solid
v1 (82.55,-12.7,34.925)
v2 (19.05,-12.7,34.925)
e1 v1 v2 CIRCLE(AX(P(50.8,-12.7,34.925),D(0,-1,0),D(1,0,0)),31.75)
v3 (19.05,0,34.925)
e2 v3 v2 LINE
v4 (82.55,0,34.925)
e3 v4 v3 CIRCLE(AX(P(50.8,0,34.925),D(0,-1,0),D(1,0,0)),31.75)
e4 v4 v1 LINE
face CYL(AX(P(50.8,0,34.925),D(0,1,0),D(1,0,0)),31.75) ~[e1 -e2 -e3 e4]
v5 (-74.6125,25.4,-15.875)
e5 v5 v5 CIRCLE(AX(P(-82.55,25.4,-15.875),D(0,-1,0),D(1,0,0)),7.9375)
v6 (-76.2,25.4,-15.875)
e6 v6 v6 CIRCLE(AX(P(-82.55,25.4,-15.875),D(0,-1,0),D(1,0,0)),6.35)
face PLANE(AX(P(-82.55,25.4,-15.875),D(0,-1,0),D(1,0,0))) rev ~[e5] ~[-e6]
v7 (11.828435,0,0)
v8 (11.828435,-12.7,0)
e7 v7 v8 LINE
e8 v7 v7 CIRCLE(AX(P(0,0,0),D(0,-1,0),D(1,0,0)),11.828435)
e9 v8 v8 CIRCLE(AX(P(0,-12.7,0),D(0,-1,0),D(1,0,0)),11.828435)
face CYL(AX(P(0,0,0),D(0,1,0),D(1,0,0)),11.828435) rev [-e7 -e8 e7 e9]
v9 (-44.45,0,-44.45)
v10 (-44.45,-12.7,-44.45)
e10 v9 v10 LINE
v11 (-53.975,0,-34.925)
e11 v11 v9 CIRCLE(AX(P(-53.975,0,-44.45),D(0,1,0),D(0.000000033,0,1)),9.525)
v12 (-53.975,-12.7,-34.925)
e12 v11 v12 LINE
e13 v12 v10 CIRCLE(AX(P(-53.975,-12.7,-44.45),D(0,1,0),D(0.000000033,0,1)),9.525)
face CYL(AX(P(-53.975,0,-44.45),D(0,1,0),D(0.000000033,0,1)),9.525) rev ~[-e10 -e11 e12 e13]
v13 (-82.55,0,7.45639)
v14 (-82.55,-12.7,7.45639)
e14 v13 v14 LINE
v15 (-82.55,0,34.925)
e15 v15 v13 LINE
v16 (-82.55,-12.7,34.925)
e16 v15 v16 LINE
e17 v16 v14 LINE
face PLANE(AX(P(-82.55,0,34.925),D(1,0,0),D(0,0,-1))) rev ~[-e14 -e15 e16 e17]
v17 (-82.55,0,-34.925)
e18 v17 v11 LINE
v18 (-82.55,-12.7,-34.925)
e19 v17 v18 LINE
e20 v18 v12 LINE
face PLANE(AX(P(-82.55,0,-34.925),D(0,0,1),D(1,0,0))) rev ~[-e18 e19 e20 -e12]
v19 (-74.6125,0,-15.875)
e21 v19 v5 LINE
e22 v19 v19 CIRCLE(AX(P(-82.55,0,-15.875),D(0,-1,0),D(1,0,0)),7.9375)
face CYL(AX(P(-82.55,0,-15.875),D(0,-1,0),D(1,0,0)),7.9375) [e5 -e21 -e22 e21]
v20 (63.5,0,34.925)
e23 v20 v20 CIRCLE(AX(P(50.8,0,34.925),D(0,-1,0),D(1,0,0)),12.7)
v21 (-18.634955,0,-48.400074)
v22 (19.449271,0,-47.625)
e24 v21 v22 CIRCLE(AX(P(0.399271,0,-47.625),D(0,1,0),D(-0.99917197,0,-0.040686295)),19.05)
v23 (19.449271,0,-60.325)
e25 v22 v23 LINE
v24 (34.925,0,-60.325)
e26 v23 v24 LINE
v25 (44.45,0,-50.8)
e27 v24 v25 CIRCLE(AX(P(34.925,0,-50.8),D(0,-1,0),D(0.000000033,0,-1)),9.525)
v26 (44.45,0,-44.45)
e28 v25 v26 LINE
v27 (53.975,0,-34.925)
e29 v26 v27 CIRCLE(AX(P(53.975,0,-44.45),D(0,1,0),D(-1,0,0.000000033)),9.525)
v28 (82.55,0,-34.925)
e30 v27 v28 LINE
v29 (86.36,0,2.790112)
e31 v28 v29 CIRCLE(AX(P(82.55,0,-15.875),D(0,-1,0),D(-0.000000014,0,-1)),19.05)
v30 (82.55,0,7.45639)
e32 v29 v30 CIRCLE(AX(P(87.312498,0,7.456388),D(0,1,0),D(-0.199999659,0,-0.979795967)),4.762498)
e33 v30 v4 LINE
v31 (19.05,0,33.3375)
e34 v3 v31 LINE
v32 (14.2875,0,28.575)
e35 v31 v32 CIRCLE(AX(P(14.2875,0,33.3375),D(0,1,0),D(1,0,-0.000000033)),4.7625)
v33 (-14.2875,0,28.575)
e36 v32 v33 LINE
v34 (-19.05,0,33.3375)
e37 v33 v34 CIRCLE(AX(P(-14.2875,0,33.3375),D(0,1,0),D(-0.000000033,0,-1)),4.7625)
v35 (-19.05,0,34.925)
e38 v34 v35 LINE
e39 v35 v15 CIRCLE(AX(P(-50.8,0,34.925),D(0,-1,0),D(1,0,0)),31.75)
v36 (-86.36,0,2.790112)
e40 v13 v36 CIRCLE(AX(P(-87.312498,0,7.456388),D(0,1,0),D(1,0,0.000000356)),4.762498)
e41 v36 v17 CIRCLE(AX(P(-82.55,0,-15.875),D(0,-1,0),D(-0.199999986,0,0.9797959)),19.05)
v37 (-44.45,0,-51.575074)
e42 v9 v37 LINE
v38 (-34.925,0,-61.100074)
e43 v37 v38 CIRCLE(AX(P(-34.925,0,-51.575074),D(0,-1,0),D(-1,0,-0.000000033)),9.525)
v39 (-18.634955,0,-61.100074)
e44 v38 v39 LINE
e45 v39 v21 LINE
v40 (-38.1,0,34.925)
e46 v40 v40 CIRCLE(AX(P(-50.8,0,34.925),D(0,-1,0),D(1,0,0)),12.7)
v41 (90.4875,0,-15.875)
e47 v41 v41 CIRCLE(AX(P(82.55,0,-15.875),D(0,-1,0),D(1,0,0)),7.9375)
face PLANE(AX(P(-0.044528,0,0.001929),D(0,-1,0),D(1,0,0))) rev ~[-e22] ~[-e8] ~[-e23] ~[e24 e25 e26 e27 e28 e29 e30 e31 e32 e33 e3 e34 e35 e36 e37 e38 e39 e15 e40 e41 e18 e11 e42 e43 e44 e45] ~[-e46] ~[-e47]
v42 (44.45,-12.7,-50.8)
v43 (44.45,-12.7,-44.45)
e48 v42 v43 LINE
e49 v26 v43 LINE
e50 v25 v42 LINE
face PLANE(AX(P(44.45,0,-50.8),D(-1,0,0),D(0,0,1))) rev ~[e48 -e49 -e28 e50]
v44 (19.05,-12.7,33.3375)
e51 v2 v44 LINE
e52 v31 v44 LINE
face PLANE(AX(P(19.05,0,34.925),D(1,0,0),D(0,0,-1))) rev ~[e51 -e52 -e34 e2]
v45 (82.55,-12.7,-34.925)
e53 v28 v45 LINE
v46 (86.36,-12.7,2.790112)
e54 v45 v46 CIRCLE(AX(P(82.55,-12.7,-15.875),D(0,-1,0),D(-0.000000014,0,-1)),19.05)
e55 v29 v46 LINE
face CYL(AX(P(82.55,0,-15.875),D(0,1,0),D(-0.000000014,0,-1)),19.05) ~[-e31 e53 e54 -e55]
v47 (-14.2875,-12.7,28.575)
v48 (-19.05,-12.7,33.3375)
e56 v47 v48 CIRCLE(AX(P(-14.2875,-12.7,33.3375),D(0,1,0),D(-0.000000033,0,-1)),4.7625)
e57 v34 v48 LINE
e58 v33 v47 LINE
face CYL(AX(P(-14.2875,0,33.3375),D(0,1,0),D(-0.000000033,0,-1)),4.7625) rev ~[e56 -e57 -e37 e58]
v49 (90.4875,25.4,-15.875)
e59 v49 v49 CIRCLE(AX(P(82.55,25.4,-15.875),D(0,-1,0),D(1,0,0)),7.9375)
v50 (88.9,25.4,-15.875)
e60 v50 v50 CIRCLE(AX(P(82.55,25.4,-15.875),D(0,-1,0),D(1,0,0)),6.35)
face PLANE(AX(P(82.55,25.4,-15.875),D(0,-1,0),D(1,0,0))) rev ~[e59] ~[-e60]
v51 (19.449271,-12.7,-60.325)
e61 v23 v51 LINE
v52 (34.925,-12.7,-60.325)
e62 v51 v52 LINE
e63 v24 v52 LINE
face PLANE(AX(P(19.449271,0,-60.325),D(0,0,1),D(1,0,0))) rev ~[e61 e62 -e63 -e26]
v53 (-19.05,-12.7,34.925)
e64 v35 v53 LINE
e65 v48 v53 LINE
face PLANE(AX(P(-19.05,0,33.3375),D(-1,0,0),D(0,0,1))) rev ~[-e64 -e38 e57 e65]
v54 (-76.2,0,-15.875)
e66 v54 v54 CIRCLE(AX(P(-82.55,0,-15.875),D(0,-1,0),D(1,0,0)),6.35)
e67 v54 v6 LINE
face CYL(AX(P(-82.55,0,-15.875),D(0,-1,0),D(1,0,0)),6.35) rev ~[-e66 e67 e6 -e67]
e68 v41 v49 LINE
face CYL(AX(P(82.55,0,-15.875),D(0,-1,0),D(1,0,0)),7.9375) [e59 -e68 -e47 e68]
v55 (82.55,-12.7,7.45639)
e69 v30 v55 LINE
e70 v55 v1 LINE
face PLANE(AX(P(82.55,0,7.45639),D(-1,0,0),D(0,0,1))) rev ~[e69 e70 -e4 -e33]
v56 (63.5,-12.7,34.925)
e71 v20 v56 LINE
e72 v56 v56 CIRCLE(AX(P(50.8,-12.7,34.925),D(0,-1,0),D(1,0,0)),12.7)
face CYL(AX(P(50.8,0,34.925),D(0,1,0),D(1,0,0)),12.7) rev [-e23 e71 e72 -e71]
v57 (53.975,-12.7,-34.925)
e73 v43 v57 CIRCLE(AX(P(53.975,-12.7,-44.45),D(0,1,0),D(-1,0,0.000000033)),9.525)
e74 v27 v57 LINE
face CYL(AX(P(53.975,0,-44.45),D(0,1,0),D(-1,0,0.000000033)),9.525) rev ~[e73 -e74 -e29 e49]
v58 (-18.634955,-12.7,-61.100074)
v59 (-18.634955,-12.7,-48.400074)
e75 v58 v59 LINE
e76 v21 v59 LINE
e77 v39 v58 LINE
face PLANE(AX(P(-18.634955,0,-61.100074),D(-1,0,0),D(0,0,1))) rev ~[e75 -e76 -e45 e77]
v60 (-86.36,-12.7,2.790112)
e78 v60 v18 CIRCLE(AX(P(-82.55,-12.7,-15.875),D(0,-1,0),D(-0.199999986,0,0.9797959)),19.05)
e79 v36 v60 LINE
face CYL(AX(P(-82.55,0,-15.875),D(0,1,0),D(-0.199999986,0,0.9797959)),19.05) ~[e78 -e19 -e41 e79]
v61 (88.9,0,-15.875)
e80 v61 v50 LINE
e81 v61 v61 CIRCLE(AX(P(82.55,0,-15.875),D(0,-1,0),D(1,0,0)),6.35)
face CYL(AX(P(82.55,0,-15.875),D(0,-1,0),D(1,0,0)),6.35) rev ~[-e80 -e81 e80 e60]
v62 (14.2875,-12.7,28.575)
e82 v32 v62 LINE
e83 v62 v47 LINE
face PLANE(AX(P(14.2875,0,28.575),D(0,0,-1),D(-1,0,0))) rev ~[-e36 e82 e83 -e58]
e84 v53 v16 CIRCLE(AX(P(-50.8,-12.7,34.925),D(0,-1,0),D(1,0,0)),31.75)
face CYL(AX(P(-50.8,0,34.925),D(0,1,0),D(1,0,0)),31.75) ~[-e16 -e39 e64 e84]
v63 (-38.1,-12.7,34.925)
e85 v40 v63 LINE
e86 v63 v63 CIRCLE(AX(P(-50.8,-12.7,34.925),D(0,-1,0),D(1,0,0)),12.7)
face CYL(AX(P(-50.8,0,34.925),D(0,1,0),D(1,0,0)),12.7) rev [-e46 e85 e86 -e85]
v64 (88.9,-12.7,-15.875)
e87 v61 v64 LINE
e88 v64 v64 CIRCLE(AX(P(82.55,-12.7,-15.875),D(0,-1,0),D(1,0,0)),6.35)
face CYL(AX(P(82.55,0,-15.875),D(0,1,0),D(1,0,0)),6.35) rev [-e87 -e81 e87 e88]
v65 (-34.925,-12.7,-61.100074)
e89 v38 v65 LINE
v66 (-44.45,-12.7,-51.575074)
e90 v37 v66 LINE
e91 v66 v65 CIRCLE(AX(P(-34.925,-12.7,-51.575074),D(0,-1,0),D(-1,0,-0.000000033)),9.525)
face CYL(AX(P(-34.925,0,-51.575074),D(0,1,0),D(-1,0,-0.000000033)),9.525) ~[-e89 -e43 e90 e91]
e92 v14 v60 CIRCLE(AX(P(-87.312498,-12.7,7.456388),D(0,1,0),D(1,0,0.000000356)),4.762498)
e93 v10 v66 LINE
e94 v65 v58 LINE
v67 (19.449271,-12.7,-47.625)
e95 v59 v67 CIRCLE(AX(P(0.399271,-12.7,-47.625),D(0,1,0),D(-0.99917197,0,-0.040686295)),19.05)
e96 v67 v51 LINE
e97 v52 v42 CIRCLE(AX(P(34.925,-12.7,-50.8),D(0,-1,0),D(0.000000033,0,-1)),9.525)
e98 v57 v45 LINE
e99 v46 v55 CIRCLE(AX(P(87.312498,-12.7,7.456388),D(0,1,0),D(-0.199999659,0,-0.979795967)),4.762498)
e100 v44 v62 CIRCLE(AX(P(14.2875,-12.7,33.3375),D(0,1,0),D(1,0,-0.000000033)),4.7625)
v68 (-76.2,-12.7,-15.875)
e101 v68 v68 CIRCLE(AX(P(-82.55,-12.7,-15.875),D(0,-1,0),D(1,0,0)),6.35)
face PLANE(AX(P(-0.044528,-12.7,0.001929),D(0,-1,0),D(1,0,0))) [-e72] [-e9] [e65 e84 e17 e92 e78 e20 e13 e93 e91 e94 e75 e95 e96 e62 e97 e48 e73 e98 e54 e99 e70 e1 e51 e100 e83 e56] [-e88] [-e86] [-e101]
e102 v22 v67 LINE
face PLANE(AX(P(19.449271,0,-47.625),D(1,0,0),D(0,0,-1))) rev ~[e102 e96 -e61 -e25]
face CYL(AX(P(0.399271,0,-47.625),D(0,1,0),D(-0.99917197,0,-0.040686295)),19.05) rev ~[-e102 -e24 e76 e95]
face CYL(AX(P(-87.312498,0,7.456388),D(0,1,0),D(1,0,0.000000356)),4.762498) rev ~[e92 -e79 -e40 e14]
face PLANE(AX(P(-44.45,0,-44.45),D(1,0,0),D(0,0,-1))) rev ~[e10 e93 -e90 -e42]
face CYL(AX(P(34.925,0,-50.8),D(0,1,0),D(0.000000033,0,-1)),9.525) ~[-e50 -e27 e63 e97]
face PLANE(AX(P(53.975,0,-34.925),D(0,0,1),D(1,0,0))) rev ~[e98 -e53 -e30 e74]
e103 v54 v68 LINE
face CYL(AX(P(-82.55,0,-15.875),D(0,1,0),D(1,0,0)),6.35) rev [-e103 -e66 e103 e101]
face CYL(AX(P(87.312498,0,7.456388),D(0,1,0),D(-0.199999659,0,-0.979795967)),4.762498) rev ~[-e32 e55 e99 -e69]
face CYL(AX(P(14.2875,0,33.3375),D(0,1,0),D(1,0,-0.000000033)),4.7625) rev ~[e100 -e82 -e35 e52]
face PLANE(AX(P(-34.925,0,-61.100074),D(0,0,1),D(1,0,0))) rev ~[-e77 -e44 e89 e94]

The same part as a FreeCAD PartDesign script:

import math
import FreeCAD as App
import Part
import Sketcher

V = App.Vector
Q = App.Units.Quantity

doc = App.newDocument("Part")
body = doc.addObject("PartDesign::Body", "Body")

# Sketch on XZ plane
sketch1 = body.newObject("Sketcher::SketchObject", "Sketch")
sketch1.AttachmentSupport = (doc.getObject("XZ_Plane"), [""])
sketch1.MapMode = "FlatFace"
sketch1.addGeometry([
    Part.LineSegment(V(82.55, 7.45639, 0), V(82.55, 34.925, 0)),  # 0
    Part.ArcOfCircle(Part.Circle(V(50.8, 34.925, 0), V(0, 0, 1), 31.75), math.radians(0), math.radians(180)),  # 1
    Part.LineSegment(V(19.05, 34.925, 0), V(19.05, 33.3375, 0)),  # 2
    Part.ArcOfCircle(Part.Circle(V(14.2875, 33.3375, 0), V(0, 0, 1), 4.7625), math.radians(-89.999998), math.radians(-0.000002)),  # 3
    Part.LineSegment(V(14.2875, 28.575, 0), V(-14.2875, 28.575, 0)),  # 4
    Part.ArcOfCircle(Part.Circle(V(-14.2875, 33.3375, 0), V(0, 0, 1), 4.7625), math.radians(-179.999998), math.radians(-90.000002)),  # 5
    Part.LineSegment(V(-19.05, 33.3375, 0), V(-19.05, 34.925, 0)),  # 6
    Part.ArcOfCircle(Part.Circle(V(-50.8, 34.925, 0), V(0, 0, 1), 31.75), math.radians(0), math.radians(180)),  # 7
    Part.LineSegment(V(-82.55, 34.925, 0), V(-82.55, 7.45639, 0)),  # 8
    Part.ArcOfCircle(Part.Circle(V(-87.312498, 7.456388, 0), V(0, 0, 1), 4.762498), math.radians(-78.463061), math.radians(0.00002)),  # 9
    Part.ArcOfCircle(Part.Circle(V(-82.55, -15.875, 0), V(0, 0, 1), 19.05), math.radians(101.536958), math.radians(270.000001)),  # 10
    Part.LineSegment(V(-82.55, -34.925, 0), V(-53.975, -34.925, 0)),  # 11
    Part.ArcOfCircle(Part.Circle(V(-53.975, -44.45, 0), V(0, 0, 1), 9.525), math.radians(0.000002), math.radians(89.999998)),  # 12
    Part.LineSegment(V(-44.45, -44.45, 0), V(-44.45, -51.575074, 0)),  # 13
    Part.ArcOfCircle(Part.Circle(V(-34.925, -51.575074, 0), V(0, 0, 1), 9.525), math.radians(-179.999998), math.radians(-90.000002)),  # 14
    Part.LineSegment(V(-34.925, -61.100074, 0), V(-18.634955, -61.100074, 0)),  # 15
    Part.LineSegment(V(-18.634955, -61.100074, 0), V(-18.634955, -48.400074, 0)),  # 16
    Part.ArcOfCircle(Part.Circle(V(0.399271, -47.625, 0), V(0, 0, 1), 19.05), math.radians(0), math.radians(182.331797)),  # 17
    Part.LineSegment(V(19.449271, -47.625, 0), V(19.449271, -60.325, 0)),  # 18
    Part.LineSegment(V(19.449271, -60.325, 0), V(34.925, -60.325, 0)),  # 19
    Part.ArcOfCircle(Part.Circle(V(34.925, -50.8, 0), V(0, 0, 1), 9.525), math.radians(-89.999998), math.radians(-0.000002)),  # 20
    Part.LineSegment(V(44.45, -50.8, 0), V(44.45, -44.45, 0)),  # 21
    Part.ArcOfCircle(Part.Circle(V(53.975, -44.45, 0), V(0, 0, 1), 9.525), math.radians(90.000002), math.radians(179.999998)),  # 22
    Part.LineSegment(V(53.975, -34.925, 0), V(82.55, -34.925, 0)),  # 23
    Part.ArcOfCircle(Part.Circle(V(82.55, -15.875, 0), V(0, 0, 1), 19.05), math.radians(-90.000001), math.radians(78.463042)),  # 24
    Part.ArcOfCircle(Part.Circle(V(87.312498, 7.456388, 0), V(0, 0, 1), 4.762498), math.radians(179.99998), math.radians(258.463061)),  # 25
    Part.Circle(V(-82.55, -15.875, 0), V(0, 0, 1), 6.35),  # 26
    Part.Circle(V(82.55, -15.875, 0), V(0, 0, 1), 6.35),  # 27
    Part.Circle(V(0, 0, 0), V(0, 0, 1), 11.828435),  # 28
    Part.Circle(V(-50.8, 34.925, 0), V(0, 0, 1), 12.7),  # 29
    Part.Circle(V(50.8, 34.925, 0), V(0, 0, 1), 12.7),  # 30
], False)
sketch1.addConstraint([
    Sketcher.Constraint("Tangent", 0, 2, 1, 1),
    Sketcher.Constraint("Tangent", 1, 2, 2, 1),
    Sketcher.Constraint("Tangent", 2, 2, 3, 2),
    Sketcher.Constraint("Tangent", 3, 1, 4, 1),
    Sketcher.Constraint("Tangent", 4, 2, 5, 2),
    Sketcher.Constraint("Tangent", 5, 1, 6, 1),
    Sketcher.Constraint("Tangent", 6, 2, 7, 1),
    Sketcher.Constraint("Tangent", 7, 2, 8, 1),
    Sketcher.Constraint("Tangent", 8, 2, 9, 2),
    Sketcher.Constraint("Tangent", 9, 1, 10, 1),
    Sketcher.Constraint("Tangent", 10, 2, 11, 1),
    Sketcher.Constraint("Tangent", 11, 2, 12, 2),
    Sketcher.Constraint("Tangent", 12, 1, 13, 1),
    Sketcher.Constraint("Tangent", 13, 2, 14, 1),
    Sketcher.Constraint("Tangent", 14, 2, 15, 1),
    Sketcher.Constraint("Coincident", 15, 2, 16, 1),
    Sketcher.Constraint("Coincident", 16, 2, 17, 2),
    Sketcher.Constraint("Tangent", 17, 1, 18, 1),
    Sketcher.Constraint("Coincident", 18, 2, 19, 1),
    Sketcher.Constraint("Tangent", 19, 2, 20, 1),
    Sketcher.Constraint("Tangent", 20, 2, 21, 1),
    Sketcher.Constraint("Tangent", 21, 2, 22, 2),
    Sketcher.Constraint("Tangent", 22, 1, 23, 1),
    Sketcher.Constraint("Tangent", 23, 2, 24, 1),
    Sketcher.Constraint("Tangent", 24, 2, 25, 2),
    Sketcher.Constraint("Tangent", 25, 1, 0, 1),
    Sketcher.Constraint("Vertical", 0),
    Sketcher.Constraint("Vertical", 2),
    Sketcher.Constraint("Horizontal", 4),
    Sketcher.Constraint("Vertical", 6),
    Sketcher.Constraint("Vertical", 8),
    Sketcher.Constraint("Horizontal", 11),
    Sketcher.Constraint("Vertical", 13),
    Sketcher.Constraint("Horizontal", 15),
    Sketcher.Constraint("Vertical", 16),
    Sketcher.Constraint("Vertical", 18),
    Sketcher.Constraint("Horizontal", 19),
    Sketcher.Constraint("Vertical", 21),
    Sketcher.Constraint("Horizontal", 23),
    Sketcher.Constraint("Coincident", 28, 3, -1, 1),
    Sketcher.Constraint("Coincident", 26, 3, 10, 3),
    Sketcher.Constraint("Coincident", 27, 3, 24, 3),
    Sketcher.Constraint("Coincident", 29, 3, 7, 3),
    Sketcher.Constraint("Coincident", 30, 3, 1, 3),
    Sketcher.Constraint("Equal", 3, 5),
    Sketcher.Constraint("Equal", 1, 7),
    Sketcher.Constraint("Equal", 12, 14),
    Sketcher.Constraint("Equal", 10, 17),
    Sketcher.Constraint("Equal", 14, 20),
    Sketcher.Constraint("Equal", 20, 22),
    Sketcher.Constraint("Equal", 17, 24),
    Sketcher.Constraint("Equal", 9, 25),
    Sketcher.Constraint("Equal", 26, 27),
    Sketcher.Constraint("Equal", 29, 30),
    Sketcher.Constraint("Symmetric", 0, 2, 10, 2, -1, 1),
    Sketcher.Constraint("Symmetric", 7, 2, 23, 2, -1, 1),
    Sketcher.Constraint("Symmetric", 1, 3, 7, 3, -2),
    Sketcher.Constraint("Equal", 4, 11),
    Sketcher.Constraint("Equal", 11, 23),
    Sketcher.Constraint("Equal", 16, 18),
    Sketcher.Constraint("Diameter", 29, Q("1 in")),
    Sketcher.Constraint("Diameter", 26, Q("0.5 in")),
    Sketcher.Constraint("Radius", 1, Q("1.25 in")),
    Sketcher.Constraint("Radius", 10, Q("0.75 in")),
    Sketcher.Constraint("DistanceY", 16, 1, 16, 2, Q("0.5 in")),
    Sketcher.Constraint("DistanceX", -1, 1, 1, 3, Q("2 in")),
    Sketcher.Constraint("DistanceY", 20, 3, -1, 1, Q("2 in")),
    Sketcher.Constraint("Radius", 3, Q("0.1875 in")),
    Sketcher.Constraint("Radius", 9, Q("0.1874999 in")),
    Sketcher.Constraint("Radius", 12, Q("0.375 in")),
    Sketcher.Constraint("DistanceY", 10, 3, 7, 3, Q("2 in")),
    Sketcher.Constraint("DistanceY", 2, 2, 2, 1, Q("0.0625 in")),
    Sketcher.Constraint("Diameter", 28, 23.65687),
    Sketcher.Constraint("DistanceX", 19, 1, 19, 2, 15.475729),
    Sketcher.Constraint("DistanceX", 15, 1, 15, 2, 16.290045),
])
pad1 = body.newObject("PartDesign::Pad", "Pad")
pad1.Profile = sketch1
pad1.Length = Q("0.5 in")

# Sketch on XZ plane
sketch2 = body.newObject("Sketcher::SketchObject", "Sketch001")
sketch2.AttachmentSupport = (doc.getObject("XZ_Plane"), [""])
sketch2.MapMode = "FlatFace"
sketch2.addGeometry([
    Part.Circle(V(82.55, -15.875, 0), V(0, 0, 1), 7.9375),
    Part.Circle(V(82.55, -15.875, 0), V(0, 0, 1), 6.35),
], False)
sketch2.addConstraint([
    Sketcher.Constraint("Coincident", 1, 3, 0, 3),
    Sketcher.Constraint("Diameter", 1, Q("0.5 in")),
    Sketcher.Constraint("Diameter", 0, Q("0.625 in")),
    Sketcher.Constraint("DistanceX", -1, 1, 0, 3, Q("3.25 in")),
    Sketcher.Constraint("DistanceY", 0, 3, -1, 1, Q("0.625 in")),
])
pad2 = body.newObject("PartDesign::Pad", "Pad001")
pad2.Profile = sketch2
pad2.Length = Q("1 in")
pad2.Reversed = True

# Sketch on XZ plane
sketch3 = body.newObject("Sketcher::SketchObject", "Sketch002")
sketch3.AttachmentSupport = (doc.getObject("XZ_Plane"), [""])
sketch3.MapMode = "FlatFace"
sketch3.addGeometry([
    Part.Circle(V(-82.55, -15.875, 0), V(0, 0, 1), 7.9375),
    Part.Circle(V(-82.55, -15.875, 0), V(0, 0, 1), 6.35),
], False)
sketch3.addConstraint([
    Sketcher.Constraint("Coincident", 1, 3, 0, 3),
    Sketcher.Constraint("Diameter", 1, Q("0.5 in")),
    Sketcher.Constraint("Diameter", 0, Q("0.625 in")),
    Sketcher.Constraint("DistanceX", 0, 3, -1, 1, Q("3.25 in")),
    Sketcher.Constraint("DistanceY", 0, 3, -1, 1, Q("0.625 in")),
])
pad3 = body.newObject("PartDesign::Pad", "Pad002")
pad3.Profile = sketch3
pad3.Length = Q("1 in")
pad3.Reversed = True

doc.recompute()
